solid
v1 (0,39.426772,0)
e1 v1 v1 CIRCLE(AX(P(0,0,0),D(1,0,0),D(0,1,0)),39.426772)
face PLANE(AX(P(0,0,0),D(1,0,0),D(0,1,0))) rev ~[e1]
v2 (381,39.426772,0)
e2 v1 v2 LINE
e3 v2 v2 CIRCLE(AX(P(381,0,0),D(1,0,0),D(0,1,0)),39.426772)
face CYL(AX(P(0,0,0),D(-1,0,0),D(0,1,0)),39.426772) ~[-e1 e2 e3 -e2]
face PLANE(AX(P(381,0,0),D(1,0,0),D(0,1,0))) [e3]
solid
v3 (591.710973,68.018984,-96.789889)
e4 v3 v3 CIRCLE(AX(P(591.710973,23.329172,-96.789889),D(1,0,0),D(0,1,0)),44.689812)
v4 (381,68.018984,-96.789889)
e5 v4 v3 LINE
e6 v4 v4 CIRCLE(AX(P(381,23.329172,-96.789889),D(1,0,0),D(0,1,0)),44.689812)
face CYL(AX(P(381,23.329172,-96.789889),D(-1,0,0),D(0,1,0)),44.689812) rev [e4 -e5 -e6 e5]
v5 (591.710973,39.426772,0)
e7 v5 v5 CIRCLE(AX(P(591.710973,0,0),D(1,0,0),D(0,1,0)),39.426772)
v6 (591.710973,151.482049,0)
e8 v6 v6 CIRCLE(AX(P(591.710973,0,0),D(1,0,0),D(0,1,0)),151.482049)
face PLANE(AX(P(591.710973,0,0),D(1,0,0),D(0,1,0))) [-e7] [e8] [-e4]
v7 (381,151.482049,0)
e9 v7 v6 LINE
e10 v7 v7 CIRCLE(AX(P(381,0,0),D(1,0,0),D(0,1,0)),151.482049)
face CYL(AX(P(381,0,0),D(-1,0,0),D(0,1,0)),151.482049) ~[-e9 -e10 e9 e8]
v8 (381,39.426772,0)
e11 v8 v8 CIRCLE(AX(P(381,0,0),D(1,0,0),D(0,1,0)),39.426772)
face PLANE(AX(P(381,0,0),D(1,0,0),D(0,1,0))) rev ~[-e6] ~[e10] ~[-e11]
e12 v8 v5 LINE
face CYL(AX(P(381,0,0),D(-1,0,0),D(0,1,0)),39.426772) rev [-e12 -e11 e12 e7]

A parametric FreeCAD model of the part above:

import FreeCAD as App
import Part
import Sketcher

V = App.Vector

doc = App.newDocument("Part")
params = doc.addObject("Spreadsheet::Sheet", "Params")
for row, (alias, value) in enumerate([
    ("pad1_length", "15 in"),
    ("pad2_length", "210.710973 mm"),
], start=1):
    params.set(f"A{row}", alias)
    params.set(f"B{row}", "=" + value)
    params.setAlias(f"B{row}", alias)

body = doc.addObject("PartDesign::Body", "Body")

# Sketch on YZ plane
sketch1 = body.newObject("Sketcher::SketchObject", "Sketch")
sketch1.AttachmentSupport = (doc.getObject("YZ_Plane"), [""])
sketch1.MapMode = "FlatFace"
sketch1.addGeometry(Part.Circle(V(0, 0, 0), V(0, 0, 1), 39), False)
sketch1.addConstraint(Sketcher.Constraint("Coincident", 0, 3, -1, 1))
sketch1.addConstraint(Sketcher.Constraint("Diameter", 0, 78.853544))
pad1 = body.newObject("PartDesign::Pad", "Pad")
pad1.Profile = sketch1
pad1.setExpression("Length", "Params.pad1_length")
body2 = doc.addObject("PartDesign::Body", "Body001")

# Sketch on YZ plane
sketch2 = body2.newObject("Sketcher::SketchObject", "Sketch001")
sketch2.AttachmentSupport = (doc.getObject("YZ_Plane001"), [""])
sketch2.MapMode = "FlatFace"
sketch2.AttachmentOffset = App.Placement(V(0, 0, 15 * 25.4), App.Rotation())
sketch2.addGeometry(Part.Circle(V(0, 0, 0), V(0, 0, 1), 151), False)
sketch2.addGeometry(Part.Circle(V(23, -97, 0), V(0, 0, 1), 45), False)
sketch2.addGeometry(Part.Circle(V(0, 0, 0), V(0, 0, 1), 39), False)
sketch2.addConstraint(Sketcher.Constraint("Coincident", 0, 3, -1, 1))
sketch2.addConstraint(Sketcher.Constraint("Coincident", 2, 3, -1, 1))
sketch2.addConstraint(Sketcher.Constraint("Diameter", 0, 302.964098))
sketch2.addConstraint(Sketcher.Constraint("Diameter", 1, 89.379624))
sketch2.addConstraint(Sketcher.Constraint("Diameter", 2, 78.853544))
sketch2.addConstraint(Sketcher.Constraint("DistanceX", -1, 1, 1, 3, 23.329172))
sketch2.addConstraint(Sketcher.Constraint("DistanceY", 1, 3, -1, 1, 96.789889))
pad2 = body2.newObject("PartDesign::Pad", "Pad001")
pad2.Profile = sketch2
pad2.setExpression("Length", "Params.pad2_length")

doc.recompute()
